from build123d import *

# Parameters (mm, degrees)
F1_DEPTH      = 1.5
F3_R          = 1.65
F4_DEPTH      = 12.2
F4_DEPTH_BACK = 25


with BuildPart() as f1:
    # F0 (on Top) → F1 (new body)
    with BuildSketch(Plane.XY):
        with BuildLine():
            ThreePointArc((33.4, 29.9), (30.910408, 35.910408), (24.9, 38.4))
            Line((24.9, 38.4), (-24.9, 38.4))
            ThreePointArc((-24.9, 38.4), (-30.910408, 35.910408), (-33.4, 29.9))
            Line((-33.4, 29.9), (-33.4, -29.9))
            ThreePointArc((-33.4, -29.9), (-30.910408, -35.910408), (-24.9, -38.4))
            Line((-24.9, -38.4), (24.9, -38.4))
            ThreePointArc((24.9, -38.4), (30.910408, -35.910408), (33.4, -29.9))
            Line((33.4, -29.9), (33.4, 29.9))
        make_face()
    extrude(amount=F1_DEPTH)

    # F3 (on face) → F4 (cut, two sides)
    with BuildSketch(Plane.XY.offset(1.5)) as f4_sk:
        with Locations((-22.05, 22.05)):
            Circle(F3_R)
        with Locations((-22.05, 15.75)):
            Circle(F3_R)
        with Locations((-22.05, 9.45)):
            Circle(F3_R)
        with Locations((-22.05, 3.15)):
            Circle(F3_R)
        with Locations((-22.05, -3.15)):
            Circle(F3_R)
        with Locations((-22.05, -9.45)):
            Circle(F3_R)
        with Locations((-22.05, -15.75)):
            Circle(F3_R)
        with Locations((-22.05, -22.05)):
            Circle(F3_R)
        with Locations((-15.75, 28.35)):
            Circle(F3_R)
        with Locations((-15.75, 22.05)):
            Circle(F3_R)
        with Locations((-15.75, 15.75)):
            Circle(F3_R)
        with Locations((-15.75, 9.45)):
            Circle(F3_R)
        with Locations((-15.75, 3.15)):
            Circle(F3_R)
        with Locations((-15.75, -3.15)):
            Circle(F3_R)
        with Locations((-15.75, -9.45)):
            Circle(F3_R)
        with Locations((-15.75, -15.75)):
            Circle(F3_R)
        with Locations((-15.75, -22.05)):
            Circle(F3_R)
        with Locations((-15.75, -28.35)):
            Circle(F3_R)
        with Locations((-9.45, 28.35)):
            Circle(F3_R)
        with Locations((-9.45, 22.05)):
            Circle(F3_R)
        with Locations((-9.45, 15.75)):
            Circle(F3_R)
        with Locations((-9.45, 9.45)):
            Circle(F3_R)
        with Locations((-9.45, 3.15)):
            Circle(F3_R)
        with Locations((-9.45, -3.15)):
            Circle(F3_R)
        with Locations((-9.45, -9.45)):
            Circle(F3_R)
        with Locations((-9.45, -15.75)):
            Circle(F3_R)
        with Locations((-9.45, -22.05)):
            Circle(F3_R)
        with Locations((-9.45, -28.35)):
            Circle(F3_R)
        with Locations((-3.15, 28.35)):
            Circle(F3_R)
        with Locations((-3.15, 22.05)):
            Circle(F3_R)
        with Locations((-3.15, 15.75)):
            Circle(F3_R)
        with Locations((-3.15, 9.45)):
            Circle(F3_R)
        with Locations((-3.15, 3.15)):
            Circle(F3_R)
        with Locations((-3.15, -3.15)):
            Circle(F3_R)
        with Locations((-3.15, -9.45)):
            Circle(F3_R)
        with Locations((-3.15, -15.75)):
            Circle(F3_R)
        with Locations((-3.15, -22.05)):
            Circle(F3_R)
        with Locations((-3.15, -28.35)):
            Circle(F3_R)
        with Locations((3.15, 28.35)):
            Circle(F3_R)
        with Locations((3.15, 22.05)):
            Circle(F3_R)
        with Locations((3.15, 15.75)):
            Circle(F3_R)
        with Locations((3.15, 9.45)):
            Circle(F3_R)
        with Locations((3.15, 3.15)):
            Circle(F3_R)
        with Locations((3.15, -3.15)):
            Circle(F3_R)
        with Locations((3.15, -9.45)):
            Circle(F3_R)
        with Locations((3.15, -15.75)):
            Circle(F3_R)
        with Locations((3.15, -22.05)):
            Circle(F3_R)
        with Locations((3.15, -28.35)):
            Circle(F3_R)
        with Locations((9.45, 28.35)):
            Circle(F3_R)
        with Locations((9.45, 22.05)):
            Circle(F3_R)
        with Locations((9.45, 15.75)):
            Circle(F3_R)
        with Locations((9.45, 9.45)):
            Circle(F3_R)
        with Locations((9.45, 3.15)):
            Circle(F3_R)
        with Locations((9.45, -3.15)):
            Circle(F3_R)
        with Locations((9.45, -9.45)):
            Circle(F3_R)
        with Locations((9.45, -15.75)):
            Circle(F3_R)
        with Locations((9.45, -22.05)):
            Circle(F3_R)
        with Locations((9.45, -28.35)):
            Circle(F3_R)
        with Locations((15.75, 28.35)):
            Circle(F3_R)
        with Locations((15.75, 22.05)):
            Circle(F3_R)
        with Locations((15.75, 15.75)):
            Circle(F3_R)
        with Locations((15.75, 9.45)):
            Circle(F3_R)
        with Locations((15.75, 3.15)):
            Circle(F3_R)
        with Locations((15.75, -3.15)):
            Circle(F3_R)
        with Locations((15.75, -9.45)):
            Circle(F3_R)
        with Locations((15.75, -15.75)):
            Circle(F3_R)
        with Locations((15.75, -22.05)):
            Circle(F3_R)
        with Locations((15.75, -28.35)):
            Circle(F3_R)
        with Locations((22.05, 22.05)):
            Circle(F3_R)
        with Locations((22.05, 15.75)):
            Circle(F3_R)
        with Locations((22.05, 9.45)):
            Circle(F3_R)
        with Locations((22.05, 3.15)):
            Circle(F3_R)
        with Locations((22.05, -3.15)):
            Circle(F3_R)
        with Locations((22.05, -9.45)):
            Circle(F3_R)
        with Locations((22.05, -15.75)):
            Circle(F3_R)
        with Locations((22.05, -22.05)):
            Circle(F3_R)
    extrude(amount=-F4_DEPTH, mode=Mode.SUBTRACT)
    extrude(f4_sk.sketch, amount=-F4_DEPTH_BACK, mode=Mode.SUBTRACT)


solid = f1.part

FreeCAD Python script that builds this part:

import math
import FreeCAD as App
import Part
import Sketcher
Q = App.Units.Quantity

doc = App.newDocument("Part")
body = doc.addObject("PartDesign::Body", "Body")

# Sketch on XY plane
sketch1 = body.newObject("Sketcher::SketchObject", "Sketch")
sketch1.AttachmentSupport = (doc.getObject("XY_Plane"), [""])
sketch1.MapMode = "FlatFace"
sketch1.addGeometry([
    Part.ArcOfCircle(Part.Circle(App.Vector(25, 30, 0), App.Vector(0, 0, 1), 8), math.radians(0), math.radians(90)),  # 0
    Part.LineSegment(App.Vector(25, 38, 0), App.Vector(-25, 38, 0)),  # 1
    Part.ArcOfCircle(Part.Circle(App.Vector(-25, 30, 0), App.Vector(0, 0, 1), 8), math.radians(90), math.radians(180)),  # 2
    Part.LineSegment(App.Vector(-33, 30, 0), App.Vector(-33, -30, 0)),  # 3
    Part.ArcOfCircle(Part.Circle(App.Vector(-25, -30, 0), App.Vector(0, 0, 1), 8), math.radians(180), math.radians(270)),  # 4
    Part.LineSegment(App.Vector(-25, -38, 0), App.Vector(25, -38, 0)),  # 5
    Part.ArcOfCircle(Part.Circle(App.Vector(25, -30, 0), App.Vector(0, 0, 1), 8), math.radians(-90), math.radians(0)),  # 6
    Part.LineSegment(App.Vector(33, -30, 0), App.Vector(33, 30, 0)),  # 7
], False)
sketch1.addConstraint([
    Sketcher.Constraint("Tangent", 0, 2, 1, 1),
    Sketcher.Constraint("Tangent", 1, 2, 2, 1),
    Sketcher.Constraint("Tangent", 2, 2, 3, 1),
    Sketcher.Constraint("Tangent", 3, 2, 4, 1),
    Sketcher.Constraint("Tangent", 4, 2, 5, 1),
    Sketcher.Constraint("Tangent", 5, 2, 6, 1),
    Sketcher.Constraint("Tangent", 6, 2, 7, 1),
    Sketcher.Constraint("Tangent", 7, 2, 0, 1),
    Sketcher.Constraint("Horizontal", 1),
    Sketcher.Constraint("Vertical", 3),
    Sketcher.Constraint("Horizontal", 5),
    Sketcher.Constraint("Vertical", 7),
    Sketcher.Constraint("Equal", 0, 2),
    Sketcher.Constraint("Equal", 2, 4),
    Sketcher.Constraint("Equal", 4, 6),
    Sketcher.Constraint("Symmetric", 0, 3, 4, 3, -1, 1),
    Sketcher.Constraint("Radius", 0, Q("8.499999 mm")),
    Sketcher.Constraint("DistanceX", 1, 2, 1, 1, Q("49.8 mm")),
    Sketcher.Constraint("DistanceY", 3, 2, 3, 1, Q("59.8 mm")),
])
pad1 = body.newObject("PartDesign::Pad", "Pad")
pad1.Profile = sketch1
pad1.Length = 1.5

# Sketch on XY plane
sketch2 = body.newObject("Sketcher::SketchObject", "Sketch001")
sketch2.AttachmentSupport = (doc.getObject("XY_Plane"), [""])
sketch2.MapMode = "FlatFace"
sketch2.AttachmentOffset = App.Placement(App.Vector(0, 0, 1.5), App.Rotation())
sketch2.addGeometry([
    Part.Circle(App.Vector(-22.1, 22.1, 0), App.Vector(0, 0, 1), 1.6),  # 0
    Part.Circle(App.Vector(-22.1, 15.8, 0), App.Vector(0, 0, 1), 1.6),  # 1
    Part.Circle(App.Vector(-22.1, 9.4, 0), App.Vector(0, 0, 1), 1.6),  # 2
    Part.Circle(App.Vector(-22.1, 3.1, 0), App.Vector(0, 0, 1), 1.6),  # 3
    Part.Circle(App.Vector(-22.1, -3.1, 0), App.Vector(0, 0, 1), 1.6),  # 4
    Part.Circle(App.Vector(-22.1, -9.4, 0), App.Vector(0, 0, 1), 1.6),  # 5
    Part.Circle(App.Vector(-22.1, -15.8, 0), App.Vector(0, 0, 1), 1.6),  # 6
    Part.Circle(App.Vector(-22.1, -22.1, 0), App.Vector(0, 0, 1), 1.6),  # 7
    Part.Circle(App.Vector(-15.8, 28.4, 0), App.Vector(0, 0, 1), 1.6),  # 8
    Part.Circle(App.Vector(-15.8, 22.1, 0), App.Vector(0, 0, 1), 1.6),  # 9
    Part.Circle(App.Vector(-15.8, 15.8, 0), App.Vector(0, 0, 1), 1.6),  # 10
    Part.Circle(App.Vector(-15.8, 9.4, 0), App.Vector(0, 0, 1), 1.6),  # 11
    Part.Circle(App.Vector(-15.8, 3.1, 0), App.Vector(0, 0, 1), 1.6),  # 12
    Part.Circle(App.Vector(-15.8, -3.1, 0), App.Vector(0, 0, 1), 1.6),  # 13
    Part.Circle(App.Vector(-15.8, -9.4, 0), App.Vector(0, 0, 1), 1.6),  # 14
    Part.Circle(App.Vector(-15.8, -15.8, 0), App.Vector(0, 0, 1), 1.6),  # 15
    Part.Circle(App.Vector(-15.8, -22.1, 0), App.Vector(0, 0, 1), 1.6),  # 16
    Part.Circle(App.Vector(-15.8, -28.4, 0), App.Vector(0, 0, 1), 1.6),  # 17
    Part.Circle(App.Vector(-9.4, 28.4, 0), App.Vector(0, 0, 1), 1.6),  # 18
    Part.Circle(App.Vector(-9.4, 22.1, 0), App.Vector(0, 0, 1), 1.6),  # 19
    Part.Circle(App.Vector(-9.4, 15.8, 0), App.Vector(0, 0, 1), 1.6),  # 20
    Part.Circle(App.Vector(-9.4, 9.4, 0), App.Vector(0, 0, 1), 1.6),  # 21
    Part.Circle(App.Vector(-9.4, 3.1, 0), App.Vector(0, 0, 1), 1.6),  # 22
    Part.Circle(App.Vector(-9.4, -3.1, 0), App.Vector(0, 0, 1), 1.6),  # 23
    Part.Circle(App.Vector(-9.4, -9.4, 0), App.Vector(0, 0, 1), 1.6),  # 24
    Part.Circle(App.Vector(-9.4, -15.8, 0), App.Vector(0, 0, 1), 1.6),  # 25
    Part.Circle(App.Vector(-9.4, -22.1, 0), App.Vector(0, 0, 1), 1.6),  # 26
    Part.Circle(App.Vector(-9.4, -28.4, 0), App.Vector(0, 0, 1), 1.6),  # 27
    Part.Circle(App.Vector(-3.1, 28.4, 0), App.Vector(0, 0, 1), 1.6),  # 28
    Part.Circle(App.Vector(-3.1, 22.1, 0), App.Vector(0, 0, 1), 1.6),  # 29
    Part.Circle(App.Vector(-3.1, 15.8, 0), App.Vector(0, 0, 1), 1.6),  # 30
    Part.Circle(App.Vector(-3.1, 9.4, 0), App.Vector(0, 0, 1), 1.6),  # 31
    Part.Circle(App.Vector(-3.1, 3.1, 0), App.Vector(0, 0, 1), 1.6),  # 32
    Part.Circle(App.Vector(-3.1, -3.1, 0), App.Vector(0, 0, 1), 1.6),  # 33
    Part.Circle(App.Vector(-3.1, -9.4, 0), App.Vector(0, 0, 1), 1.6),  # 34
    Part.Circle(App.Vector(-3.1, -15.8, 0), App.Vector(0, 0, 1), 1.6),  # 35
    Part.Circle(App.Vector(-3.1, -22.1, 0), App.Vector(0, 0, 1), 1.6),  # 36
    Part.Circle(App.Vector(-3.1, -28.4, 0), App.Vector(0, 0, 1), 1.6),  # 37
    Part.Circle(App.Vector(3.1, 28.4, 0), App.Vector(0, 0, 1), 1.6),  # 38
    Part.Circle(App.Vector(3.1, 22.1, 0), App.Vector(0, 0, 1), 1.6),  # 39
    Part.Circle(App.Vector(3.1, 15.8, 0), App.Vector(0, 0, 1), 1.6),  # 40
    Part.Circle(App.Vector(3.1, 9.4, 0), App.Vector(0, 0, 1), 1.6),  # 41
    Part.Circle(App.Vector(3.1, 3.1, 0), App.Vector(0, 0, 1), 1.6),  # 42
    Part.Circle(App.Vector(3.1, -3.1, 0), App.Vector(0, 0, 1), 1.6),  # 43
    Part.Circle(App.Vector(3.1, -9.4, 0), App.Vector(0, 0, 1), 1.6),  # 44
    Part.Circle(App.Vector(3.1, -15.8, 0), App.Vector(0, 0, 1), 1.6),  # 45
    Part.Circle(App.Vector(3.1, -22.1, 0), App.Vector(0, 0, 1), 1.6),  # 46
    Part.Circle(App.Vector(3.1, -28.4, 0), App.Vector(0, 0, 1), 1.6),  # 47
    Part.Circle(App.Vector(9.4, 28.4, 0), App.Vector(0, 0, 1), 1.6),  # 48
    Part.Circle(App.Vector(9.4, 22.1, 0), App.Vector(0, 0, 1), 1.6),  # 49
    Part.Circle(App.Vector(9.4, 15.8, 0), App.Vector(0, 0, 1), 1.6),  # 50
    Part.Circle(App.Vector(9.4, 9.4, 0), App.Vector(0, 0, 1), 1.6),  # 51
    Part.Circle(App.Vector(9.4, 3.1, 0), App.Vector(0, 0, 1), 1.6),  # 52
    Part.Circle(App.Vector(9.4, -3.1, 0), App.Vector(0, 0, 1), 1.6),  # 53
    Part.Circle(App.Vector(9.4, -9.4, 0), App.Vector(0, 0, 1), 1.6),  # 54
    Part.Circle(App.Vector(9.4, -15.8, 0), App.Vector(0, 0, 1), 1.6),  # 55
    Part.Circle(App.Vector(9.4, -22.1, 0), App.Vector(0, 0, 1), 1.6),  # 56
    Part.Circle(App.Vector(9.4, -28.4, 0), App.Vector(0, 0, 1), 1.6),  # 57
    Part.Circle(App.Vector(15.8, 28.4, 0), App.Vector(0, 0, 1), 1.6),  # 58
    Part.Circle(App.Vector(15.8, 22.1, 0), App.Vector(0, 0, 1), 1.6),  # 59
    Part.Circle(App.Vector(15.8, 15.8, 0), App.Vector(0, 0, 1), 1.6),  # 60
    Part.Circle(App.Vector(15.8, 9.4, 0), App.Vector(0, 0, 1), 1.6),  # 61
    Part.Circle(App.Vector(15.8, 3.1, 0), App.Vector(0, 0, 1), 1.6),  # 62
    Part.Circle(App.Vector(15.8, -3.1, 0), App.Vector(0, 0, 1), 1.6),  # 63
    Part.Circle(App.Vector(15.8, -9.4, 0), App.Vector(0, 0, 1), 1.6),  # 64
    Part.Circle(App.Vector(15.8, -15.8, 0), App.Vector(0, 0, 1), 1.6),  # 65
    Part.Circle(App.Vector(15.8, -22.1, 0), App.Vector(0, 0, 1), 1.6),  # 66
    Part.Circle(App.Vector(15.8, -28.4, 0), App.Vector(0, 0, 1), 1.6),  # 67
    Part.Circle(App.Vector(22.1, 22.1, 0), App.Vector(0, 0, 1), 1.6),  # 68
    Part.Circle(App.Vector(22.1, 15.8, 0), App.Vector(0, 0, 1), 1.6),  # 69
    Part.Circle(App.Vector(22.1, 9.4, 0), App.Vector(0, 0, 1), 1.6),  # 70
    Part.Circle(App.Vector(22.1, 3.1, 0), App.Vector(0, 0, 1), 1.6),  # 71
    Part.Circle(App.Vector(22.1, -3.1, 0), App.Vector(0, 0, 1), 1.6),  # 72
    Part.Circle(App.Vector(22.1, -9.4, 0), App.Vector(0, 0, 1), 1.6),  # 73
    Part.Circle(App.Vector(22.1, -15.8, 0), App.Vector(0, 0, 1), 1.6),  # 74
    Part.Circle(App.Vector(22.1, -22.1, 0), App.Vector(0, 0, 1), 1.6),  # 75
], False)
sketch2.addConstraint([
    Sketcher.Constraint("Equal", 0, 1),
    Sketcher.Constraint("Equal", 1, 2),
    Sketcher.Constraint("Equal", 2, 3),
    Sketcher.Constraint("Equal", 3, 4),
    Sketcher.Constraint("Equal", 4, 5),
    Sketcher.Constraint("Equal", 5, 6),
    Sketcher.Constraint("Equal", 6, 7),
    Sketcher.Constraint("Equal", 7, 8),
    Sketcher.Constraint("Equal", 8, 9),
    Sketcher.Constraint("Equal", 9, 10),
    Sketcher.Constraint("Equal", 10, 11),
    Sketcher.Constraint("Equal", 11, 12),
    Sketcher.Constraint("Equal", 12, 13),
    Sketcher.Constraint("Equal", 13, 14),
    Sketcher.Constraint("Equal", 14, 15),
    Sketcher.Constraint("Equal", 15, 16),
    Sketcher.Constraint("Equal", 16, 17),
    Sketcher.Constraint("Equal", 17, 18),
    Sketcher.Constraint("Equal", 18, 19),
    Sketcher.Constraint("Equal", 19, 20),
    Sketcher.Constraint("Equal", 20, 21),
    Sketcher.Constraint("Equal", 21, 22),
    Sketcher.Constraint("Equal", 22, 23),
    Sketcher.Constraint("Equal", 23, 24),
    Sketcher.Constraint("Equal", 24, 25),
    Sketcher.Constraint("Equal", 25, 26),
    Sketcher.Constraint("Equal", 26, 27),
    Sketcher.Constraint("Equal", 27, 28),
    Sketcher.Constraint("Equal", 28, 29),
    Sketcher.Constraint("Equal", 29, 30),
    Sketcher.Constraint("Equal", 30, 31),
    Sketcher.Constraint("Equal", 31, 32),
    Sketcher.Constraint("Equal", 32, 33),
    Sketcher.Constraint("Equal", 33, 34),
    Sketcher.Constraint("Equal", 34, 35),
    Sketcher.Constraint("Equal", 35, 36),
    Sketcher.Constraint("Equal", 36, 37),
    Sketcher.Constraint("Equal", 37, 38),
    Sketcher.Constraint("Equal", 38, 39),
    Sketcher.Constraint("Equal", 39, 40),
    Sketcher.Constraint("Equal", 40, 41),
    Sketcher.Constraint("Equal", 41, 42),
    Sketcher.Constraint("Equal", 42, 43),
    Sketcher.Constraint("Equal", 43, 44),
    Sketcher.Constraint("Equal", 44, 45),
    Sketcher.Constraint("Equal", 45, 46),
    Sketcher.Constraint("Equal", 46, 47),
    Sketcher.Constraint("Equal", 47, 48),
    Sketcher.Constraint("Equal", 48, 49),
    Sketcher.Constraint("Equal", 49, 50),
    Sketcher.Constraint("Equal", 50, 51),
    Sketcher.Constraint("Equal", 51, 52),
    Sketcher.Constraint("Equal", 52, 53),
    Sketcher.Constraint("Equal", 53, 54),
    Sketcher.Constraint("Equal", 54, 55),
    Sketcher.Constraint("Equal", 55, 56),
    Sketcher.Constraint("Equal", 56, 57),
    Sketcher.Constraint("Equal", 57, 58),
    Sketcher.Constraint("Equal", 58, 59),
    Sketcher.Constraint("Equal", 59, 60),
    Sketcher.Constraint("Equal", 60, 61),
    Sketcher.Constraint("Equal", 61, 62),
    Sketcher.Constraint("Equal", 62, 63),
    Sketcher.Constraint("Equal", 63, 64),
    Sketcher.Constraint("Equal", 64, 65),
    Sketcher.Constraint("Equal", 65, 66),
    Sketcher.Constraint("Equal", 66, 67),
    Sketcher.Constraint("Equal", 67, 68),
    Sketcher.Constraint("Equal", 68, 69),
    Sketcher.Constraint("Equal", 69, 70),
    Sketcher.Constraint("Equal", 70, 71),
    Sketcher.Constraint("Equal", 71, 72),
    Sketcher.Constraint("Equal", 72, 73),
    Sketcher.Constraint("Equal", 73, 74),
    Sketcher.Constraint("Equal", 74, 75),
    Sketcher.Constraint("Symmetric", 37, 3, 38, 3, -1, 1),
    Sketcher.Constraint("Symmetric", 36, 3, 39, 3, -1, 1),
    Sketcher.Constraint("Symmetric", 35, 3, 40, 3, -1, 1),
    Sketcher.Constraint("Symmetric", 34, 3, 41, 3, -1, 1),
    Sketcher.Constraint("Symmetric", 33, 3, 42, 3, -1, 1),
    Sketcher.Constraint("Symmetric", 32, 3, 43, 3, -1, 1),
    Sketcher.Constraint("Symmetric", 31, 3, 44, 3, -1, 1),
    Sketcher.Constraint("Symmetric", 30, 3, 45, 3, -1, 1),
    Sketcher.Constraint("Symmetric", 29, 3, 46, 3, -1, 1),
    Sketcher.Constraint("Symmetric", 28, 3, 47, 3, -1, 1),
    Sketcher.Constraint("Symmetric", 27, 3, 48, 3, -1, 1),
    Sketcher.Constraint("Symmetric", 26, 3, 49, 3, -1, 1),
    Sketcher.Constraint("Symmetric", 25, 3, 50, 3, -1, 1),
    Sketcher.Constraint("Symmetric", 24, 3, 51, 3, -1, 1),
    Sketcher.Constraint("Symmetric", 23, 3, 52, 3, -1, 1),
    Sketcher.Constraint("Symmetric", 22, 3, 53, 3, -1, 1),
    Sketcher.Constraint("Symmetric", 21, 3, 54, 3, -1, 1),
    Sketcher.Constraint("Symmetric", 20, 3, 55, 3, -1, 1),
    Sketcher.Constraint("Symmetric", 19, 3, 56, 3, -1, 1),
    Sketcher.Constraint("Symmetric", 18, 3, 57, 3, -1, 1),
    Sketcher.Constraint("Symmetric", 17, 3, 58, 3, -1, 1),
    Sketcher.Constraint("Symmetric", 16, 3, 59, 3, -1, 1),
    Sketcher.Constraint("Symmetric", 15, 3, 60, 3, -1, 1),
    Sketcher.Constraint("Symmetric", 14, 3, 61, 3, -1, 1),
    Sketcher.Constraint("Symmetric", 13, 3, 62, 3, -1, 1),
    Sketcher.Constraint("Symmetric", 12, 3, 63, 3, -1, 1),
    Sketcher.Constraint("Symmetric", 11, 3, 64, 3, -1, 1),
    Sketcher.Constraint("Symmetric", 10, 3, 65, 3, -1, 1),
    Sketcher.Constraint("Symmetric", 9, 3, 66, 3, -1, 1),
    Sketcher.Constraint("Symmetric", 8, 3, 67, 3, -1, 1),
    Sketcher.Constraint("Symmetric", 7, 3, 68, 3, -1, 1),
    Sketcher.Constraint("Symmetric", 6, 3, 69, 3, -1, 1),
    Sketcher.Constraint("Symmetric", 5, 3, 70, 3, -1, 1),
    Sketcher.Constraint("Symmetric", 4, 3, 71, 3, -1, 1),
    Sketcher.Constraint("Symmetric", 3, 3, 72, 3, -1, 1),
    Sketcher.Constraint("Symmetric", 2, 3, 73, 3, -1, 1),
    Sketcher.Constraint("Symmetric", 1, 3, 74, 3, -1, 1),
    Sketcher.Constraint("Symmetric", 0, 3, 75, 3, -1, 1),
    Sketcher.Constraint("Symmetric", 28, 3, 38, 3, -2),
    Sketcher.Constraint("Symmetric", 29, 3, 39, 3, -2),
    Sketcher.Constraint("Symmetric", 30, 3, 40, 3, -2),
    Sketcher.Constraint("Symmetric", 31, 3, 41, 3, -2),
    Sketcher.Constraint("Symmetric", 32, 3, 42, 3, -2),
    Sketcher.Constraint("Symmetric", 18, 3, 48, 3, -2),
    Sketcher.Constraint("Symmetric", 19, 3, 49, 3, -2),
    Sketcher.Constraint("Symmetric", 20, 3, 50, 3, -2),
    Sketcher.Constraint("Symmetric", 21, 3, 51, 3, -2),
    Sketcher.Constraint("Symmetric", 22, 3, 52, 3, -2),
    Sketcher.Constraint("Symmetric", 8, 3, 58, 3, -2),
    Sketcher.Constraint("Symmetric", 9, 3, 59, 3, -2),
    Sketcher.Constraint("Symmetric", 10, 3, 60, 3, -2),
    Sketcher.Constraint("Symmetric", 11, 3, 61, 3, -2),
    Sketcher.Constraint("Symmetric", 12, 3, 62, 3, -2),
    Sketcher.Constraint("Symmetric", 0, 3, 68, 3, -2),
    Sketcher.Constraint("Symmetric", 1, 3, 69, 3, -2),
    Sketcher.Constraint("Symmetric", 2, 3, 70, 3, -2),
    Sketcher.Constraint("Symmetric", 3, 3, 71, 3, -2),
    Sketcher.Constraint("Horizontal", 0, 3, 9, 3),
    Sketcher.Constraint("Horizontal", 1, 3, 10, 3),
    Sketcher.Constraint("Horizontal", 2, 3, 11, 3),
    Sketcher.Constraint("Horizontal", 3, 3, 12, 3),
    Sketcher.Constraint("Horizontal", 8, 3, 18, 3),
    Sketcher.Constraint("Horizontal", 9, 3, 19, 3),
    Sketcher.Constraint("Horizontal", 10, 3, 20, 3),
    Sketcher.Constraint("Horizontal", 11, 3, 21, 3),
    Sketcher.Constraint("Horizontal", 12, 3, 22, 3),
    Sketcher.Constraint("Horizontal", 18, 3, 28, 3),
    Sketcher.Constraint("Horizontal", 19, 3, 29, 3),
    Sketcher.Constraint("Horizontal", 20, 3, 30, 3),
    Sketcher.Constraint("Horizontal", 21, 3, 31, 3),
    Sketcher.Constraint("Horizontal", 22, 3, 32, 3),
    Sketcher.Constraint("Vertical", 0, 3, 1, 3),
    Sketcher.Constraint("Vertical", 1, 3, 2, 3),
    Sketcher.Constraint("Vertical", 2, 3, 3, 3),
    Sketcher.Constraint("Vertical", 8, 3, 9, 3),
    Sketcher.Constraint("Vertical", 9, 3, 10, 3),
    Sketcher.Constraint("Vertical", 10, 3, 11, 3),
    Sketcher.Constraint("Vertical", 11, 3, 12, 3),
    Sketcher.Constraint("Vertical", 18, 3, 19, 3),
    Sketcher.Constraint("Vertical", 19, 3, 20, 3),
    Sketcher.Constraint("Vertical", 20, 3, 21, 3),
    Sketcher.Constraint("Vertical", 21, 3, 22, 3),
    Sketcher.Constraint("Vertical", 28, 3, 29, 3),
    Sketcher.Constraint("Vertical", 29, 3, 30, 3),
    Sketcher.Constraint("Vertical", 30, 3, 31, 3),
    Sketcher.Constraint("Vertical", 31, 3, 32, 3),
    Sketcher.Constraint("Diameter", 0, Q("3.3 mm")),
    Sketcher.Constraint("DistanceX", 0, 3, -1, 1, Q("22.05 mm")),
    Sketcher.Constraint("DistanceY", -1, 1, 0, 3, Q("22.05 mm")),
    Sketcher.Constraint("DistanceY", -1, 1, 1, 3, Q("15.75 mm")),
    Sketcher.Constraint("DistanceY", -1, 1, 2, 3, Q("9.45 mm")),
    Sketcher.Constraint("DistanceY", -1, 1, 3, 3, Q("3.15 mm")),
    Sketcher.Constraint("DistanceX", 8, 3, -1, 1, Q("15.75 mm")),
    Sketcher.Constraint("DistanceY", -1, 1, 8, 3, Q("28.35 mm")),
    Sketcher.Constraint("DistanceX", 18, 3, -1, 1, Q("9.45 mm")),
    Sketcher.Constraint("DistanceX", 28, 3, -1, 1, Q("3.15 mm")),
])
pocket1 = body.newObject("PartDesign::Pocket", "Pocket")
pocket1.Profile = sketch2
pocket1.Length = 12.2
pocket2 = body.newObject("PartDesign::Pocket", "Pocket001")
pocket2.Profile = sketch2
pocket2.Length = 25

doc.recompute()
